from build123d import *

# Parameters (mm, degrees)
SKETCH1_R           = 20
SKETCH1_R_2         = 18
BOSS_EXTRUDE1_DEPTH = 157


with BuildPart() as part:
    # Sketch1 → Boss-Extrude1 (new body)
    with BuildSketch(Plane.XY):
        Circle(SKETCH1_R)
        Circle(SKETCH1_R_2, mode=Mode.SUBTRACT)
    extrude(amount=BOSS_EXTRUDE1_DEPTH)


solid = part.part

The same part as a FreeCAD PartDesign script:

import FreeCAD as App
import Part
import Sketcher
Q = App.Units.Quantity

doc = App.newDocument("Part")
body = doc.addObject("PartDesign::Body", "Body")

# Sketch on XY plane
sketch1 = body.newObject("Sketcher::SketchObject", "Sketch")
sketch1.AttachmentSupport = (doc.getObject("XY_Plane"), [""])
sketch1.MapMode = "FlatFace"
sketch1.addGeometry([
    Part.Circle(App.Vector(0, 0, 0), App.Vector(0, 0, 1), 20),
    Part.Circle(App.Vector(0, 0, 0), App.Vector(0, 0, 1), 18),
], False)
sketch1.addConstraint([
    Sketcher.Constraint("Coincident", 0, 3, -1, 1),
    Sketcher.Constraint("Coincident", 1, 3, -1, 1),
    Sketcher.Constraint("Diameter", 0, Q("40 mm")),
    Sketcher.Constraint("Diameter", 1, Q("36 mm")),
])
pad1 = body.newObject("PartDesign::Pad", "Pad")
pad1.Profile = sketch1
pad1.Length = 157

doc.recompute()
